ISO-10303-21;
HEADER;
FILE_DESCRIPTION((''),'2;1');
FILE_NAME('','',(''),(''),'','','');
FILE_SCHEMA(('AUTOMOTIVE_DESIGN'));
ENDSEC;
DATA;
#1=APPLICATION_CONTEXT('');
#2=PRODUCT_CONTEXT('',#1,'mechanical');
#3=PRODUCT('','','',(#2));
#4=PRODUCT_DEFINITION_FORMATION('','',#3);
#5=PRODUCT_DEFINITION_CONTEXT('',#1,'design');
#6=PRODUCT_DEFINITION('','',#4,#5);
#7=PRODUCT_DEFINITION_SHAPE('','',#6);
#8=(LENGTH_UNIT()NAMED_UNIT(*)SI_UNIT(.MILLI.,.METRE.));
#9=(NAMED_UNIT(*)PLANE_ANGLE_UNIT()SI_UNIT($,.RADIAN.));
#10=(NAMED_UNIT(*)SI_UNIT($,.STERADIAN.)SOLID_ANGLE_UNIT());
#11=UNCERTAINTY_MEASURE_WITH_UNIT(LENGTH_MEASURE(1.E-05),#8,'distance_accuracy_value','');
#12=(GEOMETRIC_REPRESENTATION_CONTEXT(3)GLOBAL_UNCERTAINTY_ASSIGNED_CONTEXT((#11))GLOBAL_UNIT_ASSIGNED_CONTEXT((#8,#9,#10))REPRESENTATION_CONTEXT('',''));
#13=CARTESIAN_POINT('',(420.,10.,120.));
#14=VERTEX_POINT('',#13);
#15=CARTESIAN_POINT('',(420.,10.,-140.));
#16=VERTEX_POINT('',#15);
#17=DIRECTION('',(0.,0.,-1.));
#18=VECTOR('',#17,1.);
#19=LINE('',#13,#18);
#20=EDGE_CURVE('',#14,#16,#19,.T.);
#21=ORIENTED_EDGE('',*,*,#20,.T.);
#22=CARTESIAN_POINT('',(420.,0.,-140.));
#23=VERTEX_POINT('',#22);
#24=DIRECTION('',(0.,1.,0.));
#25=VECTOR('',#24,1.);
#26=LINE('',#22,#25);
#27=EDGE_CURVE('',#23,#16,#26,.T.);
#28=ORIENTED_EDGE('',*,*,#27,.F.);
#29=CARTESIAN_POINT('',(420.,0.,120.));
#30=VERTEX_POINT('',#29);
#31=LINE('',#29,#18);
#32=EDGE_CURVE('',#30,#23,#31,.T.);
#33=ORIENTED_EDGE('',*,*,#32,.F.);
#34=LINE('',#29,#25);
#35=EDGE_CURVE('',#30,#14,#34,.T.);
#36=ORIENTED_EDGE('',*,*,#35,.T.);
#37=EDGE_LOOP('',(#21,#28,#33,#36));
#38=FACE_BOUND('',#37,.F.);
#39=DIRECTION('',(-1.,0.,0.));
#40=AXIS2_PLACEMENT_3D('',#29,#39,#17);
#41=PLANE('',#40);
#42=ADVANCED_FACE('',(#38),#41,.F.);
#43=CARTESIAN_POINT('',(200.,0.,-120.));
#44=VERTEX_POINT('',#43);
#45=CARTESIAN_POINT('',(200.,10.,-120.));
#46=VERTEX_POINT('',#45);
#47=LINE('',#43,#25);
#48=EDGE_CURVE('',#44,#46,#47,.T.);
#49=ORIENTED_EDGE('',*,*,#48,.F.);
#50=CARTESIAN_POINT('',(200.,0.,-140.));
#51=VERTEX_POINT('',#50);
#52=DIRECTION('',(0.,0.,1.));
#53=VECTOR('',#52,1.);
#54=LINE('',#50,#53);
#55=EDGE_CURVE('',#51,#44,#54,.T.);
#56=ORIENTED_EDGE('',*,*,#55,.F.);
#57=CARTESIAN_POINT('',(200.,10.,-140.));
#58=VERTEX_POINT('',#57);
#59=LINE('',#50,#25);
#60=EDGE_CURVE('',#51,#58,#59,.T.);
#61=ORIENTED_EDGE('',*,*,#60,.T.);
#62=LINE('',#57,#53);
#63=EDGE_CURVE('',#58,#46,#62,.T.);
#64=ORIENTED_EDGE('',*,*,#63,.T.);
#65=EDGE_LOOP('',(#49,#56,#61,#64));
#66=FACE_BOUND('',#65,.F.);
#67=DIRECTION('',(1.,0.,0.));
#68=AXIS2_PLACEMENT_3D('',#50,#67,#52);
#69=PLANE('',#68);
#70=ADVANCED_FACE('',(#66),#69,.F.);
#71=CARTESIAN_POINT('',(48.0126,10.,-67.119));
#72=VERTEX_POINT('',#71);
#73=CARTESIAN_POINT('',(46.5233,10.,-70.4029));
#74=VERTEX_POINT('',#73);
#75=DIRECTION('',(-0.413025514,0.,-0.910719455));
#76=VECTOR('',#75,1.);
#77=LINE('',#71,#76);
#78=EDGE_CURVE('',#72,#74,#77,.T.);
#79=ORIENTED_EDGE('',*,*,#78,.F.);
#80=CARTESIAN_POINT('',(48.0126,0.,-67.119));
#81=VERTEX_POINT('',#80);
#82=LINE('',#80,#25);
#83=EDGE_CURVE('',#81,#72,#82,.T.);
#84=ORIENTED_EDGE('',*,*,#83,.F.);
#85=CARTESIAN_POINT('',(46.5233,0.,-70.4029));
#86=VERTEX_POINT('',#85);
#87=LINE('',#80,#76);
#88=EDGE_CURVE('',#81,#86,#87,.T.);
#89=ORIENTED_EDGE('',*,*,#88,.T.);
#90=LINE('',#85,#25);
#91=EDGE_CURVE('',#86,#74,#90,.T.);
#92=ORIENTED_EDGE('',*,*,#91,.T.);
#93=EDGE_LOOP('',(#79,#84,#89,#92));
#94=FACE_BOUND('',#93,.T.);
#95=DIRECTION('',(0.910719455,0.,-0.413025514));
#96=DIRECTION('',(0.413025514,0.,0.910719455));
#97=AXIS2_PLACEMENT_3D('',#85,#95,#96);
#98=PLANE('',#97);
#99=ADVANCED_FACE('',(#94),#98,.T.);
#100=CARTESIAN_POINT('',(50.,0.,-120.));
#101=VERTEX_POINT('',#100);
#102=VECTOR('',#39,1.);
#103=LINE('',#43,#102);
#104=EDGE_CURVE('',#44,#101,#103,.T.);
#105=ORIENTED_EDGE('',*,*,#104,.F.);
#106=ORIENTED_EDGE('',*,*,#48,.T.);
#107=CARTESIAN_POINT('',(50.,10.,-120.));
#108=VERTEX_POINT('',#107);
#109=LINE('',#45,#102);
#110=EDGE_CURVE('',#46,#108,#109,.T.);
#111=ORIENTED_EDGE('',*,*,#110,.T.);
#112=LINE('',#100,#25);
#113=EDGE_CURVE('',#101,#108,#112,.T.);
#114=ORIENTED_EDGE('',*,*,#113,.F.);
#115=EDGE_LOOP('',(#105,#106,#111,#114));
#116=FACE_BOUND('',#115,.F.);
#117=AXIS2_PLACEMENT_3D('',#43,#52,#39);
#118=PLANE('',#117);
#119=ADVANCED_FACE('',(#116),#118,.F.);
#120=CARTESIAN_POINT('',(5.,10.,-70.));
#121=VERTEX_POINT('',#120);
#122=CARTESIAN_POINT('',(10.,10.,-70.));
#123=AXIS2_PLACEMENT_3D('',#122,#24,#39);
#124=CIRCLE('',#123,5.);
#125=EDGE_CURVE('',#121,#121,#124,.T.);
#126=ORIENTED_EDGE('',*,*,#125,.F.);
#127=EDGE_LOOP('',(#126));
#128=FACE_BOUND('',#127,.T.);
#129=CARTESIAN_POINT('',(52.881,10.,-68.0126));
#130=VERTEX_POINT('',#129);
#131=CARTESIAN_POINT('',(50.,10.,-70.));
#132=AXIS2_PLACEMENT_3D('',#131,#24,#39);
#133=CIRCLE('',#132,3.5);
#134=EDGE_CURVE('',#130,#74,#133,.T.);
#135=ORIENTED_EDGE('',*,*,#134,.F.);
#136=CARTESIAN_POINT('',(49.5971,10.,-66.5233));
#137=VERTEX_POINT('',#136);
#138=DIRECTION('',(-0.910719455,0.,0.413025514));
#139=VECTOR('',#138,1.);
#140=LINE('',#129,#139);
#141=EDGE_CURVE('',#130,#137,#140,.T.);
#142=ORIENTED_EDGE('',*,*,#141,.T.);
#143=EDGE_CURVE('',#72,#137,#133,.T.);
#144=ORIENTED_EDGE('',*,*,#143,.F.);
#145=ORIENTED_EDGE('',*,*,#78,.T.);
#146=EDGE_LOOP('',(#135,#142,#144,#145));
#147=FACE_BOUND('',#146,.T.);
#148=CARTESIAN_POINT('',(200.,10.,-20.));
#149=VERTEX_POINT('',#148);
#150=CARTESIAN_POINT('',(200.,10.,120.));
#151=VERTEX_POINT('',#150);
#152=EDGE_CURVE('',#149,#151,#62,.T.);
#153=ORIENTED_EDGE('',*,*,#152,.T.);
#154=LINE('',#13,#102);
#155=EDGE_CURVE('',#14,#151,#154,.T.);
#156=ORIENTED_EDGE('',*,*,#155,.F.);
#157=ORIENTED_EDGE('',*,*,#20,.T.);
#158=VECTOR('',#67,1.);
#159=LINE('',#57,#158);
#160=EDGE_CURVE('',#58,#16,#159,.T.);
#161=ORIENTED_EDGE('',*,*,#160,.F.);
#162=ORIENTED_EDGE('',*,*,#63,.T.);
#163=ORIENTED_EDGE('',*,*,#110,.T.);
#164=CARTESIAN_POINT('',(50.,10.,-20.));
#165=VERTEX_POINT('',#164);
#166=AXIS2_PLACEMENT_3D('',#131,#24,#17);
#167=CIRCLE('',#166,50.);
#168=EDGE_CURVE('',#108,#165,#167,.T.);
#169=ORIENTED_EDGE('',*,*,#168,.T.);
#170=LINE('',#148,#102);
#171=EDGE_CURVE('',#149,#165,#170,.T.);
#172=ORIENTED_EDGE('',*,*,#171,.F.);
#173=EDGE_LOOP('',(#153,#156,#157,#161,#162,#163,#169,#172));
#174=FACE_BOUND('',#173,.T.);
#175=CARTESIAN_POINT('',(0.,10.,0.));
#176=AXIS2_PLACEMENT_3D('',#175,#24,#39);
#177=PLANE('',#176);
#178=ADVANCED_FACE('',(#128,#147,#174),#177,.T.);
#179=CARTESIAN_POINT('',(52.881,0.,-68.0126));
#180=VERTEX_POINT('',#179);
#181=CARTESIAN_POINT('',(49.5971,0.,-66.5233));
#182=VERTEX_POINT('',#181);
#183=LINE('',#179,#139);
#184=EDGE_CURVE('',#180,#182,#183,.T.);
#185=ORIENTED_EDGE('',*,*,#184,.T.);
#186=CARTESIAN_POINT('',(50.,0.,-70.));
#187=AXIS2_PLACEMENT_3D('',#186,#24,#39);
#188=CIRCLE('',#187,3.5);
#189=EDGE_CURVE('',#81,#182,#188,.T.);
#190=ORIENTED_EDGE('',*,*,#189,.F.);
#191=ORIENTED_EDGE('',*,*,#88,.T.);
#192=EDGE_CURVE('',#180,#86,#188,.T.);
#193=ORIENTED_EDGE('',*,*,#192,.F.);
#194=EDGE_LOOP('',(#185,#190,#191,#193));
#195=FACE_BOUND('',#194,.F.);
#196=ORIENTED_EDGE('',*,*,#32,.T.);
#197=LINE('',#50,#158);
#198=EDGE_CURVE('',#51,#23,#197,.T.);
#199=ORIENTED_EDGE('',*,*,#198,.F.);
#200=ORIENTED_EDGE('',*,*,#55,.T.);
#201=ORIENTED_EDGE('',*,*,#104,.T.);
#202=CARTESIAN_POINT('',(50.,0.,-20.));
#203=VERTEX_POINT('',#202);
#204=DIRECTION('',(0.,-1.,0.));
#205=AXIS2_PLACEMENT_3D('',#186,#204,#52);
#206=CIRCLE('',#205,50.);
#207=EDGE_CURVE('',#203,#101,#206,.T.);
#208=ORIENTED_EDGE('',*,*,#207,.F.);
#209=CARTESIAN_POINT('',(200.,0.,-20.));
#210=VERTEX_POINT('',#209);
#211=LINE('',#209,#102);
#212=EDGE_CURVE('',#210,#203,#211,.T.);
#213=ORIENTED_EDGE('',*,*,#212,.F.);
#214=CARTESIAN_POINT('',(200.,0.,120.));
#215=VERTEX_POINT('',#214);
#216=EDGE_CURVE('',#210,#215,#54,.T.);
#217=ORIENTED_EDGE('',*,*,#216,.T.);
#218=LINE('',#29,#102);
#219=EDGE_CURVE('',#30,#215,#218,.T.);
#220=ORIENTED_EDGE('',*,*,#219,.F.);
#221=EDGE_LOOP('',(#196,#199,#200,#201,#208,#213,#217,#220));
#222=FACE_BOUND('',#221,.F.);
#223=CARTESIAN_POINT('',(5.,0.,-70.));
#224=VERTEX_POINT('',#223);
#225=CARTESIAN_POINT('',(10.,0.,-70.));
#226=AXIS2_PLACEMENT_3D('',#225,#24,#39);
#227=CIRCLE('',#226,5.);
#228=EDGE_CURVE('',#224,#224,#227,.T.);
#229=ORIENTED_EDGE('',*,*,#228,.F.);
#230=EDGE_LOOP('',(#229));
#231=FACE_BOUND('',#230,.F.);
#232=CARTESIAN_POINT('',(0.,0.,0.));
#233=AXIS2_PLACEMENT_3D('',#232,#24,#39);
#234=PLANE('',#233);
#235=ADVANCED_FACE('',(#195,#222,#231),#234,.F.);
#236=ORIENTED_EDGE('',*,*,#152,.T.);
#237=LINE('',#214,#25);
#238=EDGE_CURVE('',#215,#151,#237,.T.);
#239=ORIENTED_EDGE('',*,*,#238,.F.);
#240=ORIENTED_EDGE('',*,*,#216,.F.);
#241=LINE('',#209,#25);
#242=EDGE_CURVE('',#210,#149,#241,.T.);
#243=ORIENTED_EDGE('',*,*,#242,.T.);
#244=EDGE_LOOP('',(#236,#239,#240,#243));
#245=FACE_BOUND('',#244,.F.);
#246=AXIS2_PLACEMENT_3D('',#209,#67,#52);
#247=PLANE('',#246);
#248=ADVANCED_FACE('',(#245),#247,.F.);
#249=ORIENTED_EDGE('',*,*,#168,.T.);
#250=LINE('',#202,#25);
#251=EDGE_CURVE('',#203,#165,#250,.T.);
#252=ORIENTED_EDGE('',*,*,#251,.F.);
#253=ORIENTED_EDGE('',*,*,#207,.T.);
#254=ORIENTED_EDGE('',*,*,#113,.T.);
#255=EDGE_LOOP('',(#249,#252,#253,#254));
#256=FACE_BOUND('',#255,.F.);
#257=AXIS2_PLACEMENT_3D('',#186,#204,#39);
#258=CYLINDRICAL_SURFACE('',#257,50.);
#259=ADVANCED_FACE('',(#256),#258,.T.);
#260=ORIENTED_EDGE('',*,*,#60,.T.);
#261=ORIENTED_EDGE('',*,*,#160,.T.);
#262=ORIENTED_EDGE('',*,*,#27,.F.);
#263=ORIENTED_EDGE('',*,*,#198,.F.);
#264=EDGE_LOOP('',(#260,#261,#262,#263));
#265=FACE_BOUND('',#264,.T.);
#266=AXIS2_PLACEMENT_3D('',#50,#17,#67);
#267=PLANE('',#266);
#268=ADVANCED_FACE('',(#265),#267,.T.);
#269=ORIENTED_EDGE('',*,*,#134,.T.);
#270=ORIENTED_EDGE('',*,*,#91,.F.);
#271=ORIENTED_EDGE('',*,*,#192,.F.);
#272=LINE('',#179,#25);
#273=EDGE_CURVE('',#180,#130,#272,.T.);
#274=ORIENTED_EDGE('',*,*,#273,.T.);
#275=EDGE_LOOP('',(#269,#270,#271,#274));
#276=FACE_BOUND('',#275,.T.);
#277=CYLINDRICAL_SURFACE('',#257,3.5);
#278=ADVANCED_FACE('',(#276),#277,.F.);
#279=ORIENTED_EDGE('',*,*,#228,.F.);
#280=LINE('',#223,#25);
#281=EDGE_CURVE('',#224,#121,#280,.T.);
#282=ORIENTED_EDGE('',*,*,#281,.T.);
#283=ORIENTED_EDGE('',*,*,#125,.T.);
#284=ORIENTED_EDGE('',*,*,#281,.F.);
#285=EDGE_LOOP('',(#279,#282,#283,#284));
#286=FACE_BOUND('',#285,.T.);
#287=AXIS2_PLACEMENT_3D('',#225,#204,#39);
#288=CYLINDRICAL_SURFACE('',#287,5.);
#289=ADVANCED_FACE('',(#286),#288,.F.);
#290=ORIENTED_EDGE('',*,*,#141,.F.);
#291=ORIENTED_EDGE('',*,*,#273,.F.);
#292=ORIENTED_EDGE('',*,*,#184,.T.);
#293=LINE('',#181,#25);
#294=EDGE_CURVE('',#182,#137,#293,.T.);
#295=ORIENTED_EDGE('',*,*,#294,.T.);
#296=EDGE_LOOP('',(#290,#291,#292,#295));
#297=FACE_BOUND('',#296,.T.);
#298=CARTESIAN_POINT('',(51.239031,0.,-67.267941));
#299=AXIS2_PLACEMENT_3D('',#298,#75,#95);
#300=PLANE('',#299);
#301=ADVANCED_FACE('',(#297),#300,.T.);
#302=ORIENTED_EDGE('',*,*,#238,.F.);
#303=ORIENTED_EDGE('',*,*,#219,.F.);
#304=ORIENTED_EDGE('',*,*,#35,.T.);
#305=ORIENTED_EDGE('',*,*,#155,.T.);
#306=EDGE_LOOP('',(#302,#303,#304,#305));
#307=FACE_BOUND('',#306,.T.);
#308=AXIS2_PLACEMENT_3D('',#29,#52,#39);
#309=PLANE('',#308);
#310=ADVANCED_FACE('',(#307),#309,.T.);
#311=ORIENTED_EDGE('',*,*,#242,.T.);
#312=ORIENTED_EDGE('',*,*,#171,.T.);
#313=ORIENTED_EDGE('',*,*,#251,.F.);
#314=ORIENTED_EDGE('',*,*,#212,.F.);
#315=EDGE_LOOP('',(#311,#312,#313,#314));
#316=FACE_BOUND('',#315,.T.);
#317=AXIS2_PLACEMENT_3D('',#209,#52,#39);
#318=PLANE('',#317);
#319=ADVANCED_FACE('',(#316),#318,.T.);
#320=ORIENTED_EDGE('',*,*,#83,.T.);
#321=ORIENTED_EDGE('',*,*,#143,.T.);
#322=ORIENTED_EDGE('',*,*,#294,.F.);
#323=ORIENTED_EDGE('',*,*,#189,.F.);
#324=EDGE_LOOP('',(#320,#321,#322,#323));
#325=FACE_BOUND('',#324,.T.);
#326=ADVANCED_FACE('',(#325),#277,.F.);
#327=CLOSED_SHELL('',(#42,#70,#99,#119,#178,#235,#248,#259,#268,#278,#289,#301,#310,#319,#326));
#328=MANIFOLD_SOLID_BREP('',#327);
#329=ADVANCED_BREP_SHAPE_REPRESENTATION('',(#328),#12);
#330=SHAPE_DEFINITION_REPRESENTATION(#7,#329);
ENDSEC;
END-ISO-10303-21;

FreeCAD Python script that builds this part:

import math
import FreeCAD as App
import Part
import Sketcher

V = App.Vector
Q = App.Units.Quantity

doc = App.newDocument("Part")
body = doc.addObject("PartDesign::Body", "Body")

sketch1 = body.newObject("Sketcher::SketchObject", "Sketch")
sketch1.AttachmentSupport = (doc.getObject("XZ_Plane"), [""])
sketch1.MapMode = "FlatFace"
sketch1.addGeometry(Part.LineSegment(V(200, 120, 0), V(420, 120, 0)), False)
sketch1.addGeometry(Part.LineSegment(V(420, 120, 0), V(420, -140, 0)), False)
sketch1.addGeometry(Part.LineSegment(V(420, -140, 0), V(200, -140, 0)), False)
sketch1.addGeometry(Part.LineSegment(V(200, -140, 0), V(200, -120, 0)), False)
sketch1.addGeometry(Part.LineSegment(V(200, -120, 0), V(50, -120, 0)), False)
sketch1.addGeometry(Part.ArcOfCircle(Part.Circle(V(50, -70, 0), V(0, 0, 1), 50), math.radians(90), math.radians(270)), False)
sketch1.addGeometry(Part.LineSegment(V(50, -20, 0), V(200, -20, 0)), False)
sketch1.addGeometry(Part.LineSegment(V(200, -20, 0), V(200, 120, 0)), False)
sketch1.addConstraint(Sketcher.Constraint("Coincident", 0, 2, 1, 1))
sketch1.addConstraint(Sketcher.Constraint("Coincident", 1, 2, 2, 1))
sketch1.addConstraint(Sketcher.Constraint("Coincident", 2, 2, 3, 1))
sketch1.addConstraint(Sketcher.Constraint("Coincident", 3, 2, 4, 1))
sketch1.addConstraint(Sketcher.Constraint("Tangent", 4, 2, 5, 2))
sketch1.addConstraint(Sketcher.Constraint("Tangent", 5, 1, 6, 1))
sketch1.addConstraint(Sketcher.Constraint("Coincident", 6, 2, 7, 1))
sketch1.addConstraint(Sketcher.Constraint("Coincident", 7, 2, 0, 1))
sketch1.addConstraint(Sketcher.Constraint("Horizontal", 0))
sketch1.addConstraint(Sketcher.Constraint("Vertical", 1))
sketch1.addConstraint(Sketcher.Constraint("Horizontal", 2))
sketch1.addConstraint(Sketcher.Constraint("Vertical", 3))
sketch1.addConstraint(Sketcher.Constraint("Horizontal", 4))
sketch1.addConstraint(Sketcher.Constraint("Horizontal", 6))
sketch1.addConstraint(Sketcher.Constraint("Vertical", 7))
sketch1.addConstraint(Sketcher.Constraint("Symmetric", 3, 2, 7, 2, -1))
sketch1.addConstraint(Sketcher.Constraint("Radius", 5, Q("50 mm")))
sketch1.addConstraint(Sketcher.Constraint("DistanceX", 0, 1, 0, 2, Q("220 mm")))
sketch1.addConstraint(Sketcher.Constraint("DistanceY", 1, 2, 1, 1, Q("260 mm")))
sketch1.addConstraint(Sketcher.Constraint("DistanceY", 3, 1, 3, 2, Q("20 mm")))
sketch1.addConstraint(Sketcher.Constraint("DistanceX", -1, 1, 2, 2, Q("200 mm")))
sketch1.addConstraint(Sketcher.Constraint("DistanceX", 4, 2, 4, 1, Q("150 mm")))
pad1 = body.newObject("PartDesign::Pad", "Pad")
pad1.Profile = sketch1
pad1.Length = 10
pad1.Reversed = True

sketch2 = body.newObject("Sketcher::SketchObject", "Sketch001")
sketch2.AttachmentSupport = (doc.getObject("XZ_Plane"), [""])
sketch2.MapMode = "FlatFace"
sketch2.addGeometry(Part.Circle(V(10, -70, 0), V(0, 0, 1), 5), False)
sketch2.addConstraint(Sketcher.Constraint("Diameter", 0, Q("10 mm")))
sketch2.addConstraint(Sketcher.Constraint("DistanceX", -1, 1, 0, 3, Q("10 mm")))
sketch2.addConstraint(Sketcher.Constraint("DistanceY", 0, 3, -1, 1, Q("70 mm")))
pocket1 = body.newObject("PartDesign::Pocket", "Pocket")
pocket1.Profile = sketch2
pocket1.Length = 10

sketch3 = body.newObject("Sketcher::SketchObject", "Sketch002")
sketch3.AttachmentSupport = (doc.getObject("XZ_Plane"), [""])
sketch3.MapMode = "FlatFace"
sketch3.addGeometry(Part.ArcOfCircle(Part.Circle(V(50, -70, 0), V(0, 0, 1), 3.5), math.radians(-173), math.radians(35)), False)
sketch3.addGeometry(Part.LineSegment(V(46.5, -70.4, 0), V(48, -67.1, 0)), False)
sketch3.addGeometry(Part.ArcOfCircle(Part.Circle(V(50, -70, 0), V(0, 0, 1), 3.5), math.radians(97), math.radians(125)), False)
sketch3.addGeometry(Part.LineSegment(V(49.6, -66.5, 0), V(52.9, -68, 0)), False)
sketch3.addConstraint(Sketcher.Constraint("Coincident", 0, 1, 1, 1))
sketch3.addConstraint(Sketcher.Constraint("Coincident", 1, 2, 2, 2))
sketch3.addConstraint(Sketcher.Constraint("Coincident", 2, 1, 3, 1))
sketch3.addConstraint(Sketcher.Constraint("Coincident", 3, 2, 0, 2))
sketch3.addConstraint(Sketcher.Constraint("Coincident", 2, 3, 0, 3))
sketch3.addConstraint(Sketcher.Constraint("Equal", 0, 2))
sketch3.addConstraint(Sketcher.Constraint("Perpendicular", 1, 3))
sketch3.addConstraint(Sketcher.Constraint("Equal", 1, 3))
sketch3.addConstraint(Sketcher.Constraint("Radius", 0, Q("3.5 mm")))
sketch3.addConstraint(Sketcher.Constraint("DistanceX", -1, 1, 0, 3, Q("50 mm")))
sketch3.addConstraint(Sketcher.Constraint("DistanceY", 0, 3, -1, 1, Q("70 mm")))
sketch3.addConstraint(Sketcher.Constraint("DistanceY", 0, 1, -1, 1, Q("70.403 mm")))
sketch3.addConstraint(Sketcher.Constraint("DistanceY", 1, 2, -1, 1, Q("67.119 mm")))
pocket2 = body.newObject("PartDesign::Pocket", "Pocket001")
pocket2.Profile = sketch3
pocket2.Length = 10

doc.recompute()
